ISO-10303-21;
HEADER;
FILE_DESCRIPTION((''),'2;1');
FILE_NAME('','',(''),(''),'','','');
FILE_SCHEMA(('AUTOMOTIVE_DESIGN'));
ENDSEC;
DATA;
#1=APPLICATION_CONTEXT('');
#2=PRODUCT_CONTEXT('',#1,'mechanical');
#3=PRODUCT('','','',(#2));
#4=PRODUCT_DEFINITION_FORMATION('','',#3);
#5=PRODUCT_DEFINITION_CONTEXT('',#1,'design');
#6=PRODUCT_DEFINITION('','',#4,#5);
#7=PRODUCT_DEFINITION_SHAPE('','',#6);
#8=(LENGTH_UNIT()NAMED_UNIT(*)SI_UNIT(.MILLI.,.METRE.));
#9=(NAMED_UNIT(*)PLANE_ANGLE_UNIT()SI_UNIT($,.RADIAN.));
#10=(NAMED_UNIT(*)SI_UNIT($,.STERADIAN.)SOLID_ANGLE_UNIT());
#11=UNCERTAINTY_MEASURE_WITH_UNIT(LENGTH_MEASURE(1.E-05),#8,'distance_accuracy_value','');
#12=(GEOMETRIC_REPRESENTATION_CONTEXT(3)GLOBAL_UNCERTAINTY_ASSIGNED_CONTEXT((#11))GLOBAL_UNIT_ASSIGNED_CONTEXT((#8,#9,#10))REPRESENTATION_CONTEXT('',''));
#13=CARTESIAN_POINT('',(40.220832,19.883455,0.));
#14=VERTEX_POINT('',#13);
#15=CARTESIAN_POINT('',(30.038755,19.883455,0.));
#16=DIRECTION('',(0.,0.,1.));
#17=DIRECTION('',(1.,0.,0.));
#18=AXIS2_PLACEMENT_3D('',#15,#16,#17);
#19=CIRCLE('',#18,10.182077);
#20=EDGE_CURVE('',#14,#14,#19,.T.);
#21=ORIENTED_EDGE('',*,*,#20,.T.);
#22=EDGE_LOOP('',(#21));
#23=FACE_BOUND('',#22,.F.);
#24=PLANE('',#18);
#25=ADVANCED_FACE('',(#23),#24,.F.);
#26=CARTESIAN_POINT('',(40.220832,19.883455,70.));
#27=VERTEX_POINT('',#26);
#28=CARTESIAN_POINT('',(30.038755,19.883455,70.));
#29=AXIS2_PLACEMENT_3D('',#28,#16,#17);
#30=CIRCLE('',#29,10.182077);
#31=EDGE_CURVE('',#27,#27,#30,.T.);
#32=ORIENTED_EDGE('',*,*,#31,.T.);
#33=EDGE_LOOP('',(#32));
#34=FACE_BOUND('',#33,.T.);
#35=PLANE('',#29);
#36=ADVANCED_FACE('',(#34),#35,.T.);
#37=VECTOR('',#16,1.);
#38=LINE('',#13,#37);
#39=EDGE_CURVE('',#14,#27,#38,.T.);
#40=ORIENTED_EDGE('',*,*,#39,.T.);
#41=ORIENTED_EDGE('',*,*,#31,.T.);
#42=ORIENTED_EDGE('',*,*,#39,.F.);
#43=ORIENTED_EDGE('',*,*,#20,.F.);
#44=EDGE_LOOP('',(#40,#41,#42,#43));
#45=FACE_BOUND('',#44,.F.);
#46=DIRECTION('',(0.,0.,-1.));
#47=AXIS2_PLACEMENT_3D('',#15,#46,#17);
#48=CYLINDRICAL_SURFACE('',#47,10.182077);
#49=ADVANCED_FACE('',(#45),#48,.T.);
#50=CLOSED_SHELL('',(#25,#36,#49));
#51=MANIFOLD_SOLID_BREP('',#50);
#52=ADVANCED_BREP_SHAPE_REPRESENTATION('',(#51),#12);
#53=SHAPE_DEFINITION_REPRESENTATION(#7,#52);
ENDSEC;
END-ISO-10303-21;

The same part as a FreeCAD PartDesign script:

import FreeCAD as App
import Part
import Sketcher

doc = App.newDocument("Part")
body = doc.addObject("PartDesign::Body", "Body")

sketch1 = doc.addObject("Sketcher::SketchObject", "Sketch")
body.addObject(sketch1)
sketch1.AttachmentSupport = (doc.XY_Plane, [""])
sketch1.MapMode = "FlatFace"
sketch1.addGeometry(Part.Circle(App.Vector(30.038755, 19.883455, 0), App.Vector(0, 0, 1), 10.182077), False)
sketch1.addConstraint([
    Sketcher.Constraint("Diameter", 0, 20.364154),
    Sketcher.Constraint("DistanceX", -1, 1, 0, 3, 30.038755),
    Sketcher.Constraint("DistanceY", -1, 1, 0, 3, 19.883455),
])
pad1 = doc.addObject("PartDesign::Pad", "Pad")
body.addObject(pad1)
pad1.Profile = sketch1
pad1.Length = 70

doc.recompute()
